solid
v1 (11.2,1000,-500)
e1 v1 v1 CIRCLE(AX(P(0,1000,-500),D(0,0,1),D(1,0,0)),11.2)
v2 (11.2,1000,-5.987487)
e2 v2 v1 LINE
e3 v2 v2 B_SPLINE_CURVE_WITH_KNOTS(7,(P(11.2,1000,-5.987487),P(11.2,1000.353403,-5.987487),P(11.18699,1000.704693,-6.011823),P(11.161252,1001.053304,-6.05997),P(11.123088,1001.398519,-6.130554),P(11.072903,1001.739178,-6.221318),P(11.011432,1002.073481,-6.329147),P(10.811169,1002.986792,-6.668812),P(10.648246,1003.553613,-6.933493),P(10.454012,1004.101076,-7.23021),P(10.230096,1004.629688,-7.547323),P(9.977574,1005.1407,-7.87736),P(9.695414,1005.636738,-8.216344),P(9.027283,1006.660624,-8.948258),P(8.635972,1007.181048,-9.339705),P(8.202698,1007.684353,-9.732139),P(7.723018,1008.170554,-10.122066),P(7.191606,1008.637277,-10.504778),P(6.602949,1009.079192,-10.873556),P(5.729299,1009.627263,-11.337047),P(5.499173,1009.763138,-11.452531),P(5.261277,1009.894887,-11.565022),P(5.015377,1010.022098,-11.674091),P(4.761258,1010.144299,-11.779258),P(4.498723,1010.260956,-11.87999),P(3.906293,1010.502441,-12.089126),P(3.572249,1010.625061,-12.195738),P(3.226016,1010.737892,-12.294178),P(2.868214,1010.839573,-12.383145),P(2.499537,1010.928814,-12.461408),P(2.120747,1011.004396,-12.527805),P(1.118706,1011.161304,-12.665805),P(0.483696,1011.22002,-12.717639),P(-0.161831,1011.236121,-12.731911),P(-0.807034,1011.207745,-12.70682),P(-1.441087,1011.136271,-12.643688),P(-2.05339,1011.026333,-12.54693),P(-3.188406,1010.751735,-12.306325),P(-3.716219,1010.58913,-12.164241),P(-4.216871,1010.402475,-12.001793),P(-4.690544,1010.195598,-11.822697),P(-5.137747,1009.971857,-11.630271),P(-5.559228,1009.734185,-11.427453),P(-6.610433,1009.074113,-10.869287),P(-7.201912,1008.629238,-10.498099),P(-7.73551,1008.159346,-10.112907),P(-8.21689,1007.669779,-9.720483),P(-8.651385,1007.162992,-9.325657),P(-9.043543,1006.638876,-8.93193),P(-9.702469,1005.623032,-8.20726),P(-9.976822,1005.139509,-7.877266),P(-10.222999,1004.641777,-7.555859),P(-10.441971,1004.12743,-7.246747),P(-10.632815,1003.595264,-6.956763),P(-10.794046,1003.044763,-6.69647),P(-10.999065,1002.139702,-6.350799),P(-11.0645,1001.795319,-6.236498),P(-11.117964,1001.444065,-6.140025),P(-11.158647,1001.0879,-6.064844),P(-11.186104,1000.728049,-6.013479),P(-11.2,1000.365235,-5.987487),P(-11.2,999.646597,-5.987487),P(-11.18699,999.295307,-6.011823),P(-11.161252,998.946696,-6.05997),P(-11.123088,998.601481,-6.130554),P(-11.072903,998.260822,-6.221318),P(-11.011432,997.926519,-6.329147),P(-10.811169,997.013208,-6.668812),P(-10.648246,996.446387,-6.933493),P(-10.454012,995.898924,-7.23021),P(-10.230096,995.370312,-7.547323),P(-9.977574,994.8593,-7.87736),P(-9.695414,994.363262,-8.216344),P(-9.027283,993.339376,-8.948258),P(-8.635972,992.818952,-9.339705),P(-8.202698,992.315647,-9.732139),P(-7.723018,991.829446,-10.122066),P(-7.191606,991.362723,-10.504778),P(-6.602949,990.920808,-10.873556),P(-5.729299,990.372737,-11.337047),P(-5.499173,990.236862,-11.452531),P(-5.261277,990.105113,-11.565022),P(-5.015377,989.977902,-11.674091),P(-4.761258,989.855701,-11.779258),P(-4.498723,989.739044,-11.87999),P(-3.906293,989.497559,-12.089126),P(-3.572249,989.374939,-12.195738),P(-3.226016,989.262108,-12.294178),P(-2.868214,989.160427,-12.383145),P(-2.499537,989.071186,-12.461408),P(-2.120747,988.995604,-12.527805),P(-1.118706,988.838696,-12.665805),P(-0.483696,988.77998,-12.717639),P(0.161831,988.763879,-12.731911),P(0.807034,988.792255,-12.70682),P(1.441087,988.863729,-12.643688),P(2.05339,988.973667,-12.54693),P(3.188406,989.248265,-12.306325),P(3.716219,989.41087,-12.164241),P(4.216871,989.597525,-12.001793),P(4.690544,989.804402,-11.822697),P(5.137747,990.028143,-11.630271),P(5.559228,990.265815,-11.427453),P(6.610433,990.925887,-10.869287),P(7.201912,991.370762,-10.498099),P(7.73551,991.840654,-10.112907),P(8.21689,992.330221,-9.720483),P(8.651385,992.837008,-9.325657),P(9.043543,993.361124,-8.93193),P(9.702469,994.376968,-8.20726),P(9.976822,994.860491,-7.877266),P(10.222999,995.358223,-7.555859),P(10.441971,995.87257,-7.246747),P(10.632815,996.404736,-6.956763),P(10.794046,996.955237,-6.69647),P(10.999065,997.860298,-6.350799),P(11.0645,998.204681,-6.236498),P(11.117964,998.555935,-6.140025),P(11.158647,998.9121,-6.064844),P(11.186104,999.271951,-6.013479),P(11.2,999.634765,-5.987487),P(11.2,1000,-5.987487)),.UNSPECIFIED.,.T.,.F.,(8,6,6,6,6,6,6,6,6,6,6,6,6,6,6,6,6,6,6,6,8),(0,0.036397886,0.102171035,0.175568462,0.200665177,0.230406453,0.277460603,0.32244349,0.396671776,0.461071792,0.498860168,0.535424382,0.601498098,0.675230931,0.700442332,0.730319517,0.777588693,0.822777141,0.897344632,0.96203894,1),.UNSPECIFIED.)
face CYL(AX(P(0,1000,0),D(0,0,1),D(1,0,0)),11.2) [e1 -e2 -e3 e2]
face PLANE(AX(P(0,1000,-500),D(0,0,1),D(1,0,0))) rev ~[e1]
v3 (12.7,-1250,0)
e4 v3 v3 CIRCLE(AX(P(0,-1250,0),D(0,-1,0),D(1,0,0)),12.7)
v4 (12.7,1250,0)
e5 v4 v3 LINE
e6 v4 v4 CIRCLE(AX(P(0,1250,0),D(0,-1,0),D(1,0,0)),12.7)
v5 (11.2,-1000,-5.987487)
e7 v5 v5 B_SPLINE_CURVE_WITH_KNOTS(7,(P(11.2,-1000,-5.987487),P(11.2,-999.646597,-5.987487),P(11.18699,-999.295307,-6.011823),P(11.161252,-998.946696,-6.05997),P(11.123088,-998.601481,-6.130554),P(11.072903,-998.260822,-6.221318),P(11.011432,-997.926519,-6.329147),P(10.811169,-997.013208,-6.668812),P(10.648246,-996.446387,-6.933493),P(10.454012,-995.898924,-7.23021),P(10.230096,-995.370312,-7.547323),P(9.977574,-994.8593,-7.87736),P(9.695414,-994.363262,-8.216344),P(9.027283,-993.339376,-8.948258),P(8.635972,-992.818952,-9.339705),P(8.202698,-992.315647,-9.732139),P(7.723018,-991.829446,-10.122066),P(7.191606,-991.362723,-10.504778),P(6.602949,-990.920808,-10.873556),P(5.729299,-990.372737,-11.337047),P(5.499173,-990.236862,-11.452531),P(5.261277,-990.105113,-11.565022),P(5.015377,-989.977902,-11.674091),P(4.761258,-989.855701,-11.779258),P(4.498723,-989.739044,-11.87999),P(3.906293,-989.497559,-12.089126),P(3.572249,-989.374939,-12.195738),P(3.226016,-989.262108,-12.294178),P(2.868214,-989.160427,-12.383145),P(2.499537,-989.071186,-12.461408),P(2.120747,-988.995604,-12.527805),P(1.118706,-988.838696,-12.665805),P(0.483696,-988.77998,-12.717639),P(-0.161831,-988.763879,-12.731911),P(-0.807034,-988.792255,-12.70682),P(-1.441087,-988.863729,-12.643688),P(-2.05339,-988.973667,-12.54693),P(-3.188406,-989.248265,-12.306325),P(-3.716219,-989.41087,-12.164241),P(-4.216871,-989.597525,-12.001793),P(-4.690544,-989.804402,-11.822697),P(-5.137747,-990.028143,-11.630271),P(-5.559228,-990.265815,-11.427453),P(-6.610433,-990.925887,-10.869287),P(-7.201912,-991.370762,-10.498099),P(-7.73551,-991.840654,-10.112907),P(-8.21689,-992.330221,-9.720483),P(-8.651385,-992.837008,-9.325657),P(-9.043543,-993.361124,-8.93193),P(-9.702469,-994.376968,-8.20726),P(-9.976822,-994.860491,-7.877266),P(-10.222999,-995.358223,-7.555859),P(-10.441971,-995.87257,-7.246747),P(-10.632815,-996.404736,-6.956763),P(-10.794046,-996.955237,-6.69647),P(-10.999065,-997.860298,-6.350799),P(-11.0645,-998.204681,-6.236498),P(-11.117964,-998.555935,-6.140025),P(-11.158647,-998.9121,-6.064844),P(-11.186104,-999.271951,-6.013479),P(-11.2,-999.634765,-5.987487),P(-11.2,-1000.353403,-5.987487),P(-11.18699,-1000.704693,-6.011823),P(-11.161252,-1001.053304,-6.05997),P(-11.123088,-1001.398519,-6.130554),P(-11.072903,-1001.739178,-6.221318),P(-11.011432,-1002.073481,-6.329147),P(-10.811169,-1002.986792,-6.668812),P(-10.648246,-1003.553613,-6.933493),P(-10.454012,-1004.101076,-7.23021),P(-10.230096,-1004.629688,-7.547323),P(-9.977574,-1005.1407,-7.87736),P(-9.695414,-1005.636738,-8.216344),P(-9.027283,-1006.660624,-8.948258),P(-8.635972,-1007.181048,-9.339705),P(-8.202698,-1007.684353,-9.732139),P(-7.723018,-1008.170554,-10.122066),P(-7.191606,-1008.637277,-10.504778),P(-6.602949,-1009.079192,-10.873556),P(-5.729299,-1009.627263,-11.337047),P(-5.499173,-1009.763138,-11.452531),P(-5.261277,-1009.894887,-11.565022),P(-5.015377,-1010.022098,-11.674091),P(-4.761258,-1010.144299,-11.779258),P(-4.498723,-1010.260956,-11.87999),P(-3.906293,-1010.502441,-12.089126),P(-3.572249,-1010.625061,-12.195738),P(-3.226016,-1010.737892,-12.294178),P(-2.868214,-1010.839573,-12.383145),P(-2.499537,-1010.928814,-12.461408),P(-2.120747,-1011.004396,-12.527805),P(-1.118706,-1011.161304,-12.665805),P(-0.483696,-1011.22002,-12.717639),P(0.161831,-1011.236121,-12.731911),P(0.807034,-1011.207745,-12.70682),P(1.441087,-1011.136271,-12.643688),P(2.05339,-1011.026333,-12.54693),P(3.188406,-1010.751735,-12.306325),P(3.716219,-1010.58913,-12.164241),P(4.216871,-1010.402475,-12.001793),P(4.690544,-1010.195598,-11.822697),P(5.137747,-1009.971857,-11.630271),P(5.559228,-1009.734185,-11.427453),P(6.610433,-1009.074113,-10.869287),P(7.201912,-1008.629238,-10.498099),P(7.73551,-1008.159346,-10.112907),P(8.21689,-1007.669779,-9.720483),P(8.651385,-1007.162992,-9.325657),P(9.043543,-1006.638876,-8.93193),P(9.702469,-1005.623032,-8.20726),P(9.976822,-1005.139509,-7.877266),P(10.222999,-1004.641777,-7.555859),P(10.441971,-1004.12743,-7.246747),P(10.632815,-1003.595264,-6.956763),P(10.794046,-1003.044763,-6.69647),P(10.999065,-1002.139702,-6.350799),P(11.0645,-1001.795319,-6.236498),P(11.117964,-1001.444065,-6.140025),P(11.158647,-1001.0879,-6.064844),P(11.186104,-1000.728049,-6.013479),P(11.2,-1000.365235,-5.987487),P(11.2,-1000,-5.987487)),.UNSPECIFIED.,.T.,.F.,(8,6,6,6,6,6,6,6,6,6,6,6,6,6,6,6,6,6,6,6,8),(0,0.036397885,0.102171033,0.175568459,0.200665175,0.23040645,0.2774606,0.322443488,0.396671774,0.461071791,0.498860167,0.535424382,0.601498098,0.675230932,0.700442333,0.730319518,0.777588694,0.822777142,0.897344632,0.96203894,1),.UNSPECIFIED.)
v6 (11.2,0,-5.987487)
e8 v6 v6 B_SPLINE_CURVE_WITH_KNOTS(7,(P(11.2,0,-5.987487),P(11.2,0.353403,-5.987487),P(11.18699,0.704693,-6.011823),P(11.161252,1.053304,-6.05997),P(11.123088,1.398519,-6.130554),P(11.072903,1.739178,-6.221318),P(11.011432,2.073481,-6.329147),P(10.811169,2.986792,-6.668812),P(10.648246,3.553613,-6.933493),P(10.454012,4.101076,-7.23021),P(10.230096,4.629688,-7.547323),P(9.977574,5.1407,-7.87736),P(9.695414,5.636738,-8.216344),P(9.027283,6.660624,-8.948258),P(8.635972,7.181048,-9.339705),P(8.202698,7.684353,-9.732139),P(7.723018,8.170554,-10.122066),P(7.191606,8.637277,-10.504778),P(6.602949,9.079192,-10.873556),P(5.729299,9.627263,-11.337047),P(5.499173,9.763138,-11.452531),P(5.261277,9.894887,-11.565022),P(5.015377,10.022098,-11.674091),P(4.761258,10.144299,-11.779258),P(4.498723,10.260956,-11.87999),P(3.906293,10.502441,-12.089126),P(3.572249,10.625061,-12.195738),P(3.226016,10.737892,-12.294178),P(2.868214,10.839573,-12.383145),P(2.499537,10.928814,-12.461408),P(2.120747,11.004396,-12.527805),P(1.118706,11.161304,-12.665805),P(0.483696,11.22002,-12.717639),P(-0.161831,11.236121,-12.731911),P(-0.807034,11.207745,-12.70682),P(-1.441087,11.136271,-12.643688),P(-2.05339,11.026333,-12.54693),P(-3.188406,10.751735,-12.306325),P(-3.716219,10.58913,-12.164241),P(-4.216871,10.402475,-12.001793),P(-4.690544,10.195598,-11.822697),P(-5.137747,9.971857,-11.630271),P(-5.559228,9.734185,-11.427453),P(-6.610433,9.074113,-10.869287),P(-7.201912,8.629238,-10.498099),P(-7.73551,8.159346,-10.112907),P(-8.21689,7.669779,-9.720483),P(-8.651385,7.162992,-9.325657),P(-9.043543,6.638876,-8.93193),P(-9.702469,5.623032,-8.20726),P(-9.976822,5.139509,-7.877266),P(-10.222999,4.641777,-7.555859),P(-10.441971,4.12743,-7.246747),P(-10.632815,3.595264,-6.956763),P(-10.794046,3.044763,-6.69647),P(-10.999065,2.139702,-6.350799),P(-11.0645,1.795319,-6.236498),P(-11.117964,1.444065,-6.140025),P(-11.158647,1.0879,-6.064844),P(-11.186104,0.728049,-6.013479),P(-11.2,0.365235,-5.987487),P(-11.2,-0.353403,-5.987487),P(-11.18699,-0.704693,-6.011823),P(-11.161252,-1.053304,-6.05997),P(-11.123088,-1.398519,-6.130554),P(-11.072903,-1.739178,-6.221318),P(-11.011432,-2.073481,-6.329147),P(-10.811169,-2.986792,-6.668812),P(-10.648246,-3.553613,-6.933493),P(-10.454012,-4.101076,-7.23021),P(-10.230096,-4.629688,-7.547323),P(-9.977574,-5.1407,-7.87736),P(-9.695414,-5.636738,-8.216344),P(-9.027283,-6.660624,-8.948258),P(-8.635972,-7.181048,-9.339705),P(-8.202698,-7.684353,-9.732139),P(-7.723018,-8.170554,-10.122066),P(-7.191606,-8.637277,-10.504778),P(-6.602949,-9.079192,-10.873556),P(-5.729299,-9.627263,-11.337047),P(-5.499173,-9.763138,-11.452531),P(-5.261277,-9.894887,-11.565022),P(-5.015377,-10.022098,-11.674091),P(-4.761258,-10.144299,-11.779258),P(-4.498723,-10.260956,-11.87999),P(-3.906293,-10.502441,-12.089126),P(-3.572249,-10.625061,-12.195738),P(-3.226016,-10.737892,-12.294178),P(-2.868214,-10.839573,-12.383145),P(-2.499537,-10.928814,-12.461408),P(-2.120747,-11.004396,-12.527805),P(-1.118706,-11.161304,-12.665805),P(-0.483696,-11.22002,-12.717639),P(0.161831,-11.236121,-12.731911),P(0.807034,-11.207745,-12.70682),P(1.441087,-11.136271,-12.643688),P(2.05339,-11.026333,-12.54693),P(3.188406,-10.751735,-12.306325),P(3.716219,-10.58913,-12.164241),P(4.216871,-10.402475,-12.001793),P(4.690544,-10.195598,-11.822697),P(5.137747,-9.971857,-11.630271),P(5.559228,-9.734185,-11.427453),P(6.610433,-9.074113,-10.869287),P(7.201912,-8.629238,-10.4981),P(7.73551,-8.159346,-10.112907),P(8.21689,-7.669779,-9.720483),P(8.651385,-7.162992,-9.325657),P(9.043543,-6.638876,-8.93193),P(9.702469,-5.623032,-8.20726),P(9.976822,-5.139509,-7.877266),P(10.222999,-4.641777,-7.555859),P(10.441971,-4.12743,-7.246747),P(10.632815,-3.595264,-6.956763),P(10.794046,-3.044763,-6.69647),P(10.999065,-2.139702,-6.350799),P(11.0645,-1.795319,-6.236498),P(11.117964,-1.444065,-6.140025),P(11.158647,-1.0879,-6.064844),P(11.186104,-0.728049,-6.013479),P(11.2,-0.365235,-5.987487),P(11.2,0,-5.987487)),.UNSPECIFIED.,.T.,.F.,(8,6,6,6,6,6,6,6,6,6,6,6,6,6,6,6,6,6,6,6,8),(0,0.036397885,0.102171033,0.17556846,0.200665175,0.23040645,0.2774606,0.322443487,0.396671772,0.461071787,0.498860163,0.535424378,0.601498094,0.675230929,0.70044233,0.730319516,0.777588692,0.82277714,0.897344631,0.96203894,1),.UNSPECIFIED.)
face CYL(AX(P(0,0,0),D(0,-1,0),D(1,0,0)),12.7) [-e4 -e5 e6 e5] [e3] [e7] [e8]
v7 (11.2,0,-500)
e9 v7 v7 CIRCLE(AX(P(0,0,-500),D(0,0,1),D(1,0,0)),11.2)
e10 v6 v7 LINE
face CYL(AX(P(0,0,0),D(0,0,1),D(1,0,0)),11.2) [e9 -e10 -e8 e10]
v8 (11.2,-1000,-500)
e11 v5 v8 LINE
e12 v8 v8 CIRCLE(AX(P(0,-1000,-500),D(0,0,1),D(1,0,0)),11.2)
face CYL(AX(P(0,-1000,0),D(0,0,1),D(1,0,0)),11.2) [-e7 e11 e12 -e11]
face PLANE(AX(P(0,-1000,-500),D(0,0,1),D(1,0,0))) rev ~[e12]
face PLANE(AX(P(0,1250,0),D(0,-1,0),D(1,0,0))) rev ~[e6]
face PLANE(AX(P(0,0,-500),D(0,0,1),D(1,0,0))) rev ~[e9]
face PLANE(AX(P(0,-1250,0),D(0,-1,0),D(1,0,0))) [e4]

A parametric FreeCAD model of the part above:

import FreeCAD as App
import Part
import Sketcher
from FreeCAD import Vector
Q = App.Units.Quantity

doc = App.newDocument("Part")
body = doc.addObject("PartDesign::Body", "Body")

# Sketch on XZ plane
sketch1 = doc.addObject("Sketcher::SketchObject", "Sketch")
body.addObject(sketch1)
sketch1.AttachmentSupport = (doc.XZ_Plane, [""])
sketch1.MapMode = "FlatFace"
sketch1.addGeometry(Part.Circle(Vector(0, 0, 0), Vector(0, 0, 1), 13), False)
sketch1.addConstraint(Sketcher.Constraint("Coincident", 0, 3, -1, 1))
sketch1.addConstraint(Sketcher.Constraint("Diameter", 0, Q("25.4 mm")))
pad1 = doc.addObject("PartDesign::Pad", "Pad")
body.addObject(pad1)
pad1.Profile = sketch1
pad1.Length = 2500
pad1.Midplane = True

# Sketch on XY plane
sketch2 = doc.addObject("Sketcher::SketchObject", "Sketch001")
body.addObject(sketch2)
sketch2.AttachmentSupport = (doc.XY_Plane, [""])
sketch2.MapMode = "FlatFace"
sketch2.addGeometry(Part.Circle(Vector(0, 0, 0), Vector(0, 0, 1), 11), False)
sketch2.addGeometry(Part.Circle(Vector(0, -1000, 0), Vector(0, 0, 1), 11), False)
sketch2.addGeometry(Part.Circle(Vector(0, 1000, 0), Vector(0, 0, 1), 11), False)
sketch2.addConstraint(Sketcher.Constraint("Coincident", 0, 3, -1, 1))
sketch2.addConstraint(Sketcher.Constraint("Equal", 0, 1))
sketch2.addConstraint(Sketcher.Constraint("Equal", 1, 2))
sketch2.addConstraint(Sketcher.Constraint("Symmetric", 1, 3, 2, 3, -1, 1))
sketch2.addConstraint(Sketcher.Constraint("PointOnObject", 1, 3, -2))
sketch2.addConstraint(Sketcher.Constraint("Diameter", 0, Q("22.4 mm")))
sketch2.addConstraint(Sketcher.Constraint("DistanceY", 1, 3, -1, 1, Q("1000 mm")))
pad2 = doc.addObject("PartDesign::Pad", "Pad001")
body.addObject(pad2)
pad2.Profile = sketch2
pad2.Length = 500
pad2.Reversed = True

doc.recompute()
